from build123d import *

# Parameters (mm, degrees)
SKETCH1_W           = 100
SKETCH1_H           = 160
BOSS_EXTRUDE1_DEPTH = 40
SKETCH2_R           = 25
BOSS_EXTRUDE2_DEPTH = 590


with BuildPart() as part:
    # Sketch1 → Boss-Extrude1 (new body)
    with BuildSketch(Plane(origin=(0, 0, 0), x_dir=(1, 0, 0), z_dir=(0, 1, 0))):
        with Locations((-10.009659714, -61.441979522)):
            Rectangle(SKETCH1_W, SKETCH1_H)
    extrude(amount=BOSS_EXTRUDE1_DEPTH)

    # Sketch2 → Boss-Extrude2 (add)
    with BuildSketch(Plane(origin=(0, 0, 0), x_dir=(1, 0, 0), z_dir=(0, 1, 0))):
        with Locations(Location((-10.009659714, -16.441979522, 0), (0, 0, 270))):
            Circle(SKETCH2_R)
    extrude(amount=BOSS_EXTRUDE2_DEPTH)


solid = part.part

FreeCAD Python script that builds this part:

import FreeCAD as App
import Part
import Sketcher

doc = App.newDocument("Part")
body = doc.addObject("PartDesign::Body", "Body")

# Sketch on XZ plane
sketch1 = doc.addObject("Sketcher::SketchObject", "Sketch")
body.addObject(sketch1)
sketch1.AttachmentSupport = (doc.XZ_Plane, [""])
sketch1.MapMode = "FlatFace"
sketch1.addGeometry(Part.LineSegment(App.Vector(-60, -19, 0), App.Vector(-60, 141, 0)), False)
sketch1.addGeometry(Part.LineSegment(App.Vector(-60, 141, 0), App.Vector(40, 141, 0)), False)
sketch1.addGeometry(Part.LineSegment(App.Vector(40, 141, 0), App.Vector(40, -19, 0)), False)
sketch1.addGeometry(Part.LineSegment(App.Vector(40, -19, 0), App.Vector(-60, -19, 0)), False)
sketch1.addConstraint(Sketcher.Constraint("Coincident", 0, 2, 1, 1))
sketch1.addConstraint(Sketcher.Constraint("Coincident", 1, 2, 2, 1))
sketch1.addConstraint(Sketcher.Constraint("Coincident", 2, 2, 3, 1))
sketch1.addConstraint(Sketcher.Constraint("Coincident", 3, 2, 0, 1))
sketch1.addConstraint(Sketcher.Constraint("Vertical", 0))
sketch1.addConstraint(Sketcher.Constraint("Horizontal", 1))
sketch1.addConstraint(Sketcher.Constraint("Vertical", 2))
sketch1.addConstraint(Sketcher.Constraint("Horizontal", 3))
sketch1.addConstraint(Sketcher.Constraint("DistanceX", 1, 1, 1, 2, 100.0))
sketch1.addConstraint(Sketcher.Constraint("DistanceY", 0, 1, 0, 2, 160.0))
sketch1.addConstraint(Sketcher.Constraint("DistanceX", 0, 2, -1, 1, 60.00966))
sketch1.addConstraint(Sketcher.Constraint("DistanceY", -1, 1, 0, 2, 141.44198))
pad1 = doc.addObject("PartDesign::Pad", "Pad")
body.addObject(pad1)
pad1.Profile = sketch1
pad1.Length = 40
pad1.Reversed = True

# Sketch on XZ plane
sketch2 = doc.addObject("Sketcher::SketchObject", "Sketch001")
body.addObject(sketch2)
sketch2.AttachmentSupport = (doc.XZ_Plane, [""])
sketch2.MapMode = "FlatFace"
sketch2.addGeometry(Part.Circle(App.Vector(-10, 16, 0), App.Vector(0, 0, 1), 25), False)
sketch2.addConstraint(Sketcher.Constraint("Diameter", 0, 50.0))
sketch2.addConstraint(Sketcher.Constraint("DistanceX", 0, 3, -1, 1, 10.00966))
sketch2.addConstraint(Sketcher.Constraint("DistanceY", -1, 1, 0, 3, 16.44198))
pad2 = doc.addObject("PartDesign::Pad", "Pad001")
body.addObject(pad2)
pad2.Profile = sketch2
pad2.Length = 590
pad2.Reversed = True

doc.recompute()
